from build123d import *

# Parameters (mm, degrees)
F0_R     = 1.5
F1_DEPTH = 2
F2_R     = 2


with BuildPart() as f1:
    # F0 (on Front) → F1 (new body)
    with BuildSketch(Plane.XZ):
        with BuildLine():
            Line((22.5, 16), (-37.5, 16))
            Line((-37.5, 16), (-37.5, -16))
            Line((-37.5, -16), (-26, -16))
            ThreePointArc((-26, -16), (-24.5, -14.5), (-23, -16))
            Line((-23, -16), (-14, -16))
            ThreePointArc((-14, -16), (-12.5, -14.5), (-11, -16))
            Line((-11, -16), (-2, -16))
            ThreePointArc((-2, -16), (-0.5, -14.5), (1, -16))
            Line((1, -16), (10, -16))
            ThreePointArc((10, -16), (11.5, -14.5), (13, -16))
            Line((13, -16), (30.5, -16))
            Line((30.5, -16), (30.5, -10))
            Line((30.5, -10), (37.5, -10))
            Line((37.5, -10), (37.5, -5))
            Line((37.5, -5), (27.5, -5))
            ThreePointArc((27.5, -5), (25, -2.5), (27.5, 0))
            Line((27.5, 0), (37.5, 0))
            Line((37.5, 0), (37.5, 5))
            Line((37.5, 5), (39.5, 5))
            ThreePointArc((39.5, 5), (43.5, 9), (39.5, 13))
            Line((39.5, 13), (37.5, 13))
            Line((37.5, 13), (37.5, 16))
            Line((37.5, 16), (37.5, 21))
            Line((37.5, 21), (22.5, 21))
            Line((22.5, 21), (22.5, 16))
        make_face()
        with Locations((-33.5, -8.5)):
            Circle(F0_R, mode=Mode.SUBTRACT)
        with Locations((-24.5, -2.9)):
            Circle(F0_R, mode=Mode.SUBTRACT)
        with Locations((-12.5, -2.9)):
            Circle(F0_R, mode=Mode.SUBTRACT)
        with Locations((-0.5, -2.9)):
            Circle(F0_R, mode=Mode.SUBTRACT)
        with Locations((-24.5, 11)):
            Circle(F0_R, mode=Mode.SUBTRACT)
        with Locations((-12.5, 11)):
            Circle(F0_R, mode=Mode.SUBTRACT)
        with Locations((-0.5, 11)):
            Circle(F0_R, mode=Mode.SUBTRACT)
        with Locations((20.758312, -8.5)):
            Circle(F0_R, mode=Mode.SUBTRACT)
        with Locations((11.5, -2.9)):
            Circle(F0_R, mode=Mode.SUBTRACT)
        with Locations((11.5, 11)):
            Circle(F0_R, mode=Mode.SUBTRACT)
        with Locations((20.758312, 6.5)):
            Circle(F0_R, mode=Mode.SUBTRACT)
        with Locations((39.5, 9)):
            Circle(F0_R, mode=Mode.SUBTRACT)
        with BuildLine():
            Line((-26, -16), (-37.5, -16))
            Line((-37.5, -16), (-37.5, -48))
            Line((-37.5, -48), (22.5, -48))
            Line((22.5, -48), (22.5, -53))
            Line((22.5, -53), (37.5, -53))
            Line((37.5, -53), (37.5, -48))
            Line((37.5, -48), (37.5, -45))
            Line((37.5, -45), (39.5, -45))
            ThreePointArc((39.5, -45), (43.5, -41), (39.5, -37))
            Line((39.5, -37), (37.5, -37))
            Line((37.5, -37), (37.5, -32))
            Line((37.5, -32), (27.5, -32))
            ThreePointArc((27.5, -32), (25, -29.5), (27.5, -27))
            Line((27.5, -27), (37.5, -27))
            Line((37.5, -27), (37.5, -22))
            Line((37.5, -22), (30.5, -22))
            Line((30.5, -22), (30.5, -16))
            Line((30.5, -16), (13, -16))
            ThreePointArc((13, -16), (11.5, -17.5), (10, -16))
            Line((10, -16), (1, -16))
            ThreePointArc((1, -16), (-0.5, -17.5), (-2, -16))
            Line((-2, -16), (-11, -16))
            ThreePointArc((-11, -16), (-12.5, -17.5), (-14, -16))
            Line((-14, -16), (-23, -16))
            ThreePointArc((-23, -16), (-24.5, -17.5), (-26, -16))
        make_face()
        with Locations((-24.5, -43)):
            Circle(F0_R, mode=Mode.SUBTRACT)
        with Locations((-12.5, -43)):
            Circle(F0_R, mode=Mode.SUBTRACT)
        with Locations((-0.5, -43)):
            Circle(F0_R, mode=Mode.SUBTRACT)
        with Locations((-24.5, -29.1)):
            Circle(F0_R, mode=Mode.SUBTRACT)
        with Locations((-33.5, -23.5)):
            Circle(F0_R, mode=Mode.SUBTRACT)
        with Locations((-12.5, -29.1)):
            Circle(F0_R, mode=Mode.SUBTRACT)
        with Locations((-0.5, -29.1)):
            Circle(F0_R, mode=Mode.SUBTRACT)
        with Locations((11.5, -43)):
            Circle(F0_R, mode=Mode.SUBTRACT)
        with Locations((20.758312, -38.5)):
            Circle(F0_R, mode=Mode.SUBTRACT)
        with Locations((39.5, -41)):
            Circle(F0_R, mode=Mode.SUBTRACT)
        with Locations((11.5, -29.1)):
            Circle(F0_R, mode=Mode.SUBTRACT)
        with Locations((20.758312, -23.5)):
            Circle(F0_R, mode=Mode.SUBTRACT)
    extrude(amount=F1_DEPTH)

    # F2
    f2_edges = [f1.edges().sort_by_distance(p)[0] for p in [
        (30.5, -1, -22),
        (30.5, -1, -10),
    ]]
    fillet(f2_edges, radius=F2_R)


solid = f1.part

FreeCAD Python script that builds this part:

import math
import FreeCAD as App
import Part
import Sketcher
from FreeCAD import Vector


def edges_at(feature, points):
    """Names of the edges that pass closest to the given points."""
    edges = feature.Shape.Edges
    near = lambda p: min(range(len(edges)), key=lambda i: edges[i].distToShape(Part.Vertex(*p))[0])
    return sorted({f"Edge{near(p) + 1}" for p in points})

doc = App.newDocument("Part")
body = doc.addObject("PartDesign::Body", "Body")

# Sketch on XZ plane
sketch1 = body.newObject("Sketcher::SketchObject", "Sketch")
sketch1.AttachmentSupport = (doc.getObject("XZ_Plane"), [""])
sketch1.MapMode = "FlatFace"
sketch1.addGeometry(Part.LineSegment(Vector(22.5, 16, 0), Vector(-37.5, 16, 0)), False)
sketch1.addGeometry(Part.LineSegment(Vector(-37.5, 16, 0), Vector(-37.5, -48, 0)), False)
sketch1.addGeometry(Part.LineSegment(Vector(-37.5, -48, 0), Vector(22.5, -48, 0)), False)
sketch1.addGeometry(Part.LineSegment(Vector(22.5, -48, 0), Vector(22.5, -53, 0)), False)
sketch1.addGeometry(Part.LineSegment(Vector(22.5, -53, 0), Vector(37.5, -53, 0)), False)
sketch1.addGeometry(Part.LineSegment(Vector(37.5, -53, 0), Vector(37.5, -45, 0)), False)
sketch1.addGeometry(Part.LineSegment(Vector(37.5, -45, 0), Vector(39.5, -45, 0)), False)
sketch1.addGeometry(Part.ArcOfCircle(Part.Circle(Vector(39.5, -41, 0), Vector(0, 0, 1), 4), math.radians(-90), math.radians(90)), False)
sketch1.addGeometry(Part.LineSegment(Vector(39.5, -37, 0), Vector(37.5, -37, 0)), False)
sketch1.addGeometry(Part.LineSegment(Vector(37.5, -37, 0), Vector(37.5, -32, 0)), False)
sketch1.addGeometry(Part.LineSegment(Vector(37.5, -32, 0), Vector(27.5, -32, 0)), False)
sketch1.addGeometry(Part.ArcOfCircle(Part.Circle(Vector(27.5, -29.5, 0), Vector(0, 0, 1), 2.5), math.radians(90), math.radians(270)), False)
sketch1.addGeometry(Part.LineSegment(Vector(27.5, -27, 0), Vector(37.5, -27, 0)), False)
sketch1.addGeometry(Part.LineSegment(Vector(37.5, -27, 0), Vector(37.5, -22, 0)), False)
sketch1.addGeometry(Part.LineSegment(Vector(37.5, -22, 0), Vector(30.5, -22, 0)), False)
sketch1.addGeometry(Part.LineSegment(Vector(30.5, -22, 0), Vector(30.5, -10, 0)), False)
sketch1.addGeometry(Part.LineSegment(Vector(30.5, -10, 0), Vector(37.5, -10, 0)), False)
sketch1.addGeometry(Part.LineSegment(Vector(37.5, -10, 0), Vector(37.5, -5, 0)), False)
sketch1.addGeometry(Part.LineSegment(Vector(37.5, -5, 0), Vector(27.5, -5, 0)), False)
sketch1.addGeometry(Part.ArcOfCircle(Part.Circle(Vector(27.5, -2.5, 0), Vector(0, 0, 1), 2.5), math.radians(90), math.radians(270)), False)
sketch1.addGeometry(Part.LineSegment(Vector(27.5, 0, 0), Vector(37.5, 0, 0)), False)
sketch1.addGeometry(Part.LineSegment(Vector(37.5, 0, 0), Vector(37.5, 5, 0)), False)
sketch1.addGeometry(Part.LineSegment(Vector(37.5, 5, 0), Vector(39.5, 5, 0)), False)
sketch1.addGeometry(Part.ArcOfCircle(Part.Circle(Vector(39.5, 9, 0), Vector(0, 0, 1), 4), math.radians(-90), math.radians(90)), False)
sketch1.addGeometry(Part.LineSegment(Vector(39.5, 13, 0), Vector(37.5, 13, 0)), False)
sketch1.addGeometry(Part.LineSegment(Vector(37.5, 13, 0), Vector(37.5, 21, 0)), False)
sketch1.addGeometry(Part.LineSegment(Vector(37.5, 21, 0), Vector(22.5, 21, 0)), False)
sketch1.addGeometry(Part.LineSegment(Vector(22.5, 21, 0), Vector(22.5, 16, 0)), False)
sketch1.addGeometry(Part.Circle(Vector(-24.5, -43, 0), Vector(0, 0, 1), 1.5), False)
sketch1.addGeometry(Part.Circle(Vector(-12.5, -43, 0), Vector(0, 0, 1), 1.5), False)
sketch1.addGeometry(Part.Circle(Vector(-0.5, -43, 0), Vector(0, 0, 1), 1.5), False)
sketch1.addGeometry(Part.Circle(Vector(-33.5, -23.5, 0), Vector(0, 0, 1), 1.5), False)
sketch1.addGeometry(Part.Circle(Vector(-24.5, -29.1, 0), Vector(0, 0, 1), 1.5), False)
sketch1.addGeometry(Part.Circle(Vector(-12.5, -29.1, 0), Vector(0, 0, 1), 1.5), False)
sketch1.addGeometry(Part.Circle(Vector(-0.5, -29.1, 0), Vector(0, 0, 1), 1.5), False)
sketch1.addGeometry(Part.Circle(Vector(11.5, -43, 0), Vector(0, 0, 1), 1.5), False)
sketch1.addGeometry(Part.Circle(Vector(20.758312, -38.5, 0), Vector(0, 0, 1), 1.5), False)
sketch1.addGeometry(Part.Circle(Vector(39.5, -41, 0), Vector(0, 0, 1), 1.5), False)
sketch1.addGeometry(Part.Circle(Vector(11.5, -29.1, 0), Vector(0, 0, 1), 1.5), False)
sketch1.addGeometry(Part.Circle(Vector(20.758312, -23.5, 0), Vector(0, 0, 1), 1.5), False)
sketch1.addGeometry(Part.Circle(Vector(-24.5, -16, 0), Vector(0, 0, 1), 1.5), False)
sketch1.addGeometry(Part.Circle(Vector(-33.5, -8.5, 0), Vector(0, 0, 1), 1.5), False)
sketch1.addGeometry(Part.Circle(Vector(-24.5, -2.9, 0), Vector(0, 0, 1), 1.5), False)
sketch1.addGeometry(Part.Circle(Vector(-12.5, -16, 0), Vector(0, 0, 1), 1.5), False)
sketch1.addGeometry(Part.Circle(Vector(-0.5, -16, 0), Vector(0, 0, 1), 1.5), False)
sketch1.addGeometry(Part.Circle(Vector(-12.5, -2.9, 0), Vector(0, 0, 1), 1.5), False)
sketch1.addGeometry(Part.Circle(Vector(-0.5, -2.9, 0), Vector(0, 0, 1), 1.5), False)
sketch1.addGeometry(Part.Circle(Vector(-24.5, 11, 0), Vector(0, 0, 1), 1.5), False)
sketch1.addGeometry(Part.Circle(Vector(-12.5, 11, 0), Vector(0, 0, 1), 1.5), False)
sketch1.addGeometry(Part.Circle(Vector(-0.5, 11, 0), Vector(0, 0, 1), 1.5), False)
sketch1.addGeometry(Part.Circle(Vector(11.5, -16, 0), Vector(0, 0, 1), 1.5), False)
sketch1.addGeometry(Part.Circle(Vector(11.5, -2.9, 0), Vector(0, 0, 1), 1.5), False)
sketch1.addGeometry(Part.Circle(Vector(20.758312, -8.5, 0), Vector(0, 0, 1), 1.5), False)
sketch1.addGeometry(Part.Circle(Vector(11.5, 11, 0), Vector(0, 0, 1), 1.5), False)
sketch1.addGeometry(Part.Circle(Vector(20.758312, 6.5, 0), Vector(0, 0, 1), 1.5), False)
sketch1.addGeometry(Part.Circle(Vector(39.5, 9, 0), Vector(0, 0, 1), 1.5), False)
sketch1.addConstraint(Sketcher.Constraint("Coincident", 0, 2, 1, 1))
sketch1.addConstraint(Sketcher.Constraint("Coincident", 1, 2, 2, 1))
sketch1.addConstraint(Sketcher.Constraint("Coincident", 2, 2, 3, 1))
sketch1.addConstraint(Sketcher.Constraint("Coincident", 3, 2, 4, 1))
sketch1.addConstraint(Sketcher.Constraint("Coincident", 4, 2, 5, 1))
sketch1.addConstraint(Sketcher.Constraint("Coincident", 5, 2, 6, 1))
sketch1.addConstraint(Sketcher.Constraint("Tangent", 6, 2, 7, 1))
sketch1.addConstraint(Sketcher.Constraint("Tangent", 7, 2, 8, 1))
sketch1.addConstraint(Sketcher.Constraint("Coincident", 8, 2, 9, 1))
sketch1.addConstraint(Sketcher.Constraint("Coincident", 9, 2, 10, 1))
sketch1.addConstraint(Sketcher.Constraint("Tangent", 10, 2, 11, 2))
sketch1.addConstraint(Sketcher.Constraint("Tangent", 11, 1, 12, 1))
sketch1.addConstraint(Sketcher.Constraint("Coincident", 12, 2, 13, 1))
sketch1.addConstraint(Sketcher.Constraint("Coincident", 13, 2, 14, 1))
sketch1.addConstraint(Sketcher.Constraint("Coincident", 14, 2, 15, 1))
sketch1.addConstraint(Sketcher.Constraint("Coincident", 15, 2, 16, 1))
sketch1.addConstraint(Sketcher.Constraint("Coincident", 16, 2, 17, 1))
sketch1.addConstraint(Sketcher.Constraint("Coincident", 17, 2, 18, 1))
sketch1.addConstraint(Sketcher.Constraint("Tangent", 18, 2, 19, 2))
sketch1.addConstraint(Sketcher.Constraint("Tangent", 19, 1, 20, 1))
sketch1.addConstraint(Sketcher.Constraint("Coincident", 20, 2, 21, 1))
sketch1.addConstraint(Sketcher.Constraint("Coincident", 21, 2, 22, 1))
sketch1.addConstraint(Sketcher.Constraint("Tangent", 22, 2, 23, 1))
sketch1.addConstraint(Sketcher.Constraint("Tangent", 23, 2, 24, 1))
sketch1.addConstraint(Sketcher.Constraint("Coincident", 24, 2, 25, 1))
sketch1.addConstraint(Sketcher.Constraint("Coincident", 25, 2, 26, 1))
sketch1.addConstraint(Sketcher.Constraint("Coincident", 26, 2, 27, 1))
sketch1.addConstraint(Sketcher.Constraint("Coincident", 27, 2, 0, 1))
sketch1.addConstraint(Sketcher.Constraint("Horizontal", 0))
sketch1.addConstraint(Sketcher.Constraint("Vertical", 1))
sketch1.addConstraint(Sketcher.Constraint("Horizontal", 2))
sketch1.addConstraint(Sketcher.Constraint("Vertical", 3))
sketch1.addConstraint(Sketcher.Constraint("Horizontal", 4))
sketch1.addConstraint(Sketcher.Constraint("Vertical", 5))
sketch1.addConstraint(Sketcher.Constraint("Horizontal", 6))
sketch1.addConstraint(Sketcher.Constraint("Horizontal", 8))
sketch1.addConstraint(Sketcher.Constraint("Vertical", 9))
sketch1.addConstraint(Sketcher.Constraint("Horizontal", 10))
sketch1.addConstraint(Sketcher.Constraint("Horizontal", 12))
sketch1.addConstraint(Sketcher.Constraint("Vertical", 13))
sketch1.addConstraint(Sketcher.Constraint("Horizontal", 14))
sketch1.addConstraint(Sketcher.Constraint("Vertical", 15))
sketch1.addConstraint(Sketcher.Constraint("Horizontal", 16))
sketch1.addConstraint(Sketcher.Constraint("Vertical", 17))
sketch1.addConstraint(Sketcher.Constraint("Horizontal", 18))
sketch1.addConstraint(Sketcher.Constraint("Horizontal", 20))
sketch1.addConstraint(Sketcher.Constraint("Vertical", 21))
sketch1.addConstraint(Sketcher.Constraint("Horizontal", 22))
sketch1.addConstraint(Sketcher.Constraint("Horizontal", 24))
sketch1.addConstraint(Sketcher.Constraint("Vertical", 25))
sketch1.addConstraint(Sketcher.Constraint("Horizontal", 26))
sketch1.addConstraint(Sketcher.Constraint("Vertical", 27))
sketch1.addConstraint(Sketcher.Constraint("Coincident", 37, 3, 7, 3))
sketch1.addConstraint(Sketcher.Constraint("Coincident", 55, 3, 23, 3))
sketch1.addConstraint(Sketcher.Constraint("Equal", 11, 19))
sketch1.addConstraint(Sketcher.Constraint("Equal", 7, 23))
sketch1.addConstraint(Sketcher.Constraint("Equal", 28, 29))
sketch1.addConstraint(Sketcher.Constraint("Equal", 29, 30))
sketch1.addConstraint(Sketcher.Constraint("Equal", 30, 31))
sketch1.addConstraint(Sketcher.Constraint("Equal", 31, 32))
sketch1.addConstraint(Sketcher.Constraint("Equal", 32, 33))
sketch1.addConstraint(Sketcher.Constraint("Equal", 33, 34))
sketch1.addConstraint(Sketcher.Constraint("Equal", 34, 35))
sketch1.addConstraint(Sketcher.Constraint("Equal", 35, 36))
sketch1.addConstraint(Sketcher.Constraint("Equal", 36, 37))
sketch1.addConstraint(Sketcher.Constraint("Equal", 37, 38))
sketch1.addConstraint(Sketcher.Constraint("Equal", 38, 39))
sketch1.addConstraint(Sketcher.Constraint("Equal", 39, 40))
sketch1.addConstraint(Sketcher.Constraint("Equal", 40, 41))
sketch1.addConstraint(Sketcher.Constraint("Equal", 41, 42))
sketch1.addConstraint(Sketcher.Constraint("Equal", 42, 43))
sketch1.addConstraint(Sketcher.Constraint("Equal", 43, 44))
sketch1.addConstraint(Sketcher.Constraint("Equal", 44, 45))
sketch1.addConstraint(Sketcher.Constraint("Equal", 45, 46))
sketch1.addConstraint(Sketcher.Constraint("Equal", 46, 47))
sketch1.addConstraint(Sketcher.Constraint("Equal", 47, 48))
sketch1.addConstraint(Sketcher.Constraint("Equal", 48, 49))
sketch1.addConstraint(Sketcher.Constraint("Equal", 49, 50))
sketch1.addConstraint(Sketcher.Constraint("Equal", 50, 51))
sketch1.addConstraint(Sketcher.Constraint("Equal", 51, 52))
sketch1.addConstraint(Sketcher.Constraint("Equal", 52, 53))
sketch1.addConstraint(Sketcher.Constraint("Equal", 53, 54))
sketch1.addConstraint(Sketcher.Constraint("Equal", 54, 55))
sketch1.addConstraint(Sketcher.Constraint("Symmetric", 17, 2, 21, 2, -1))
sketch1.addConstraint(Sketcher.Constraint("PointOnObject", 19, 1, -1))
sketch1.addConstraint(Sketcher.Constraint("Horizontal", 28, 3, 29, 3))
sketch1.addConstraint(Sketcher.Constraint("Horizontal", 29, 3, 30, 3))
sketch1.addConstraint(Sketcher.Constraint("Horizontal", 32, 3, 33, 3))
sketch1.addConstraint(Sketcher.Constraint("Horizontal", 33, 3, 34, 3))
sketch1.addConstraint(Sketcher.Constraint("Horizontal", 30, 3, 35, 3))
sketch1.addConstraint(Sketcher.Constraint("Horizontal", 34, 3, 38, 3))
sketch1.addConstraint(Sketcher.Constraint("Horizontal", 31, 3, 39, 3))
sketch1.addConstraint(Sketcher.Constraint("Horizontal", 40, 3, 43, 3))
sketch1.addConstraint(Sketcher.Constraint("Horizontal", 43, 3, 44, 3))
sketch1.addConstraint(Sketcher.Constraint("Horizontal", 42, 3, 45, 3))
sketch1.addConstraint(Sketcher.Constraint("Horizontal", 45, 3, 46, 3))
sketch1.addConstraint(Sketcher.Constraint("Horizontal", 47, 3, 48, 3))
sketch1.addConstraint(Sketcher.Constraint("Horizontal", 48, 3, 49, 3))
sketch1.addConstraint(Sketcher.Constraint("Horizontal", 44, 3, 50, 3))
sketch1.addConstraint(Sketcher.Constraint("Horizontal", 46, 3, 51, 3))
sketch1.addConstraint(Sketcher.Constraint("Horizontal", 41, 3, 52, 3))
sketch1.addConstraint(Sketcher.Constraint("Horizontal", 49, 3, 53, 3))
sketch1.addConstraint(Sketcher.Constraint("Vertical", 11, 3, 19, 3))
sketch1.addConstraint(Sketcher.Constraint("Vertical", 7, 3, 23, 3))
sketch1.addConstraint(Sketcher.Constraint("Vertical", 28, 3, 32, 3))
sketch1.addConstraint(Sketcher.Constraint("Vertical", 29, 3, 33, 3))
sketch1.addConstraint(Sketcher.Constraint("Vertical", 30, 3, 34, 3))
sketch1.addConstraint(Sketcher.Constraint("Vertical", 35, 3, 38, 3))
sketch1.addConstraint(Sketcher.Constraint("Vertical", 36, 3, 39, 3))
sketch1.addConstraint(Sketcher.Constraint("Vertical", 32, 3, 40, 3))
sketch1.addConstraint(Sketcher.Constraint("Vertical", 31, 3, 41, 3))
sketch1.addConstraint(Sketcher.Constraint("Vertical", 40, 3, 42, 3))
sketch1.addConstraint(Sketcher.Constraint("Vertical", 33, 3, 43, 3))
sketch1.addConstraint(Sketcher.Constraint("Vertical", 34, 3, 44, 3))
sketch1.addConstraint(Sketcher.Constraint("Vertical", 43, 3, 45, 3))
sketch1.addConstraint(Sketcher.Constraint("Vertical", 44, 3, 46, 3))
sketch1.addConstraint(Sketcher.Constraint("Vertical", 42, 3, 47, 3))
sketch1.addConstraint(Sketcher.Constraint("Vertical", 45, 3, 48, 3))
sketch1.addConstraint(Sketcher.Constraint("Vertical", 46, 3, 49, 3))
sketch1.addConstraint(Sketcher.Constraint("Vertical", 38, 3, 50, 3))
sketch1.addConstraint(Sketcher.Constraint("Vertical", 50, 3, 51, 3))
sketch1.addConstraint(Sketcher.Constraint("Vertical", 39, 3, 52, 3))
sketch1.addConstraint(Sketcher.Constraint("Vertical", 51, 3, 53, 3))
sketch1.addConstraint(Sketcher.Constraint("Vertical", 52, 3, 54, 3))
sketch1.addConstraint(Sketcher.Constraint("Vertical", 5, 2, 8, 2))
sketch1.addConstraint(Sketcher.Constraint("Vertical", 9, 2, 12, 2))
sketch1.addConstraint(Sketcher.Constraint("Vertical", 13, 2, 16, 2))
sketch1.addConstraint(Sketcher.Constraint("Vertical", 21, 2, 24, 2))
sketch1.addConstraint(Sketcher.Constraint("Vertical", 3, 2, 26, 2))
sketch1.addConstraint(Sketcher.Constraint("Equal", 3, 9))
sketch1.addConstraint(Sketcher.Constraint("Equal", 9, 13))
sketch1.addConstraint(Sketcher.Constraint("Equal", 13, 17))
sketch1.addConstraint(Sketcher.Constraint("Equal", 17, 21))
sketch1.addConstraint(Sketcher.Constraint("Equal", 5, 25))
sketch1.addConstraint(Sketcher.Constraint("Equal", 21, 27))
sketch1.addConstraint(Sketcher.Constraint("Diameter", 28, 3.0))
sketch1.addConstraint(Sketcher.Constraint("Radius", 7, 4.0))
sketch1.addConstraint(Sketcher.Constraint("Radius", 11, 2.5))
sketch1.addConstraint(Sketcher.Constraint("DistanceX", 0, 2, 0, 1, 60.0))
sketch1.addConstraint(Sketcher.Constraint("DistanceX", 4, 1, 4, 2, 15.0))
sketch1.addConstraint(Sketcher.Constraint("DistanceX", 6, 1, 6, 2, 2.0))
sketch1.addConstraint(Sketcher.Constraint("DistanceX", 10, 2, 10, 1, 10.0))
sketch1.addConstraint(Sketcher.Constraint("DistanceX", 14, 2, 14, 1, 7.0))
sketch1.addConstraint(Sketcher.Constraint("DistanceY", 1, 2, 1, 1, 64.0))
sketch1.addConstraint(Sketcher.Constraint("DistanceY", 5, 1, 5, 2, 8.0))
sketch1.addConstraint(Sketcher.Constraint("DistanceY", 28, 3, -1, 1, 43.0))
sketch1.addConstraint(Sketcher.Constraint("DistanceY", 40, 3, -1, 1, 16.0))
sketch1.addConstraint(Sketcher.Constraint("DistanceY", -1, 1, 47, 3, 11.0))
sketch1.addConstraint(Sketcher.Constraint("DistanceX", 28, 3, 11, 3, 52.0))
sketch1.addConstraint(Sketcher.Constraint("DistanceX", 28, 3, 29, 3, 12.0))
sketch1.addConstraint(Sketcher.Constraint("DistanceX", 29, 3, 30, 3, 12.0))
sketch1.addConstraint(Sketcher.Constraint("DistanceX", 31, 3, 28, 3, 9.0))
sketch1.addConstraint(Sketcher.Constraint("DistanceY", 11, 3, 31, 3, 6.0))
sketch1.addConstraint(Sketcher.Constraint("DistanceX", 30, 3, 35, 3, 12.0))
sketch1.addConstraint(Sketcher.Constraint("DistanceY", 36, 3, 11, 3, 9.0))
sketch1.addConstraint(Sketcher.Constraint("DistanceY", 31, 3, 41, 3, 15.0))
sketch1.addConstraint(Sketcher.Constraint("DistanceY", 19, 3, 54, 3, 9.0))
sketch1.addConstraint(Sketcher.Constraint("DistanceX", -1, 1, 7, 3, 39.5))
sketch1.addConstraint(Sketcher.Constraint("DistanceY", 32, 3, -1, 1, 29.1))
sketch1.addConstraint(Sketcher.Constraint("DistanceY", 42, 3, -1, 1, 2.9))
sketch1.addConstraint(Sketcher.Constraint("DistanceX", -1, 1, 36, 3, 20.758312))
pad1 = body.newObject("PartDesign::Pad", "Pad")
pad1.Profile = sketch1
pad1.Length = 2
doc.recompute()

fillet = body.newObject("PartDesign::Fillet", "Fillet")
fillet.Base = (pad1, edges_at(pad1, [(30.5, -1, -22), (30.5, -1, -10)]))
fillet.Radius = 2

doc.recompute()
